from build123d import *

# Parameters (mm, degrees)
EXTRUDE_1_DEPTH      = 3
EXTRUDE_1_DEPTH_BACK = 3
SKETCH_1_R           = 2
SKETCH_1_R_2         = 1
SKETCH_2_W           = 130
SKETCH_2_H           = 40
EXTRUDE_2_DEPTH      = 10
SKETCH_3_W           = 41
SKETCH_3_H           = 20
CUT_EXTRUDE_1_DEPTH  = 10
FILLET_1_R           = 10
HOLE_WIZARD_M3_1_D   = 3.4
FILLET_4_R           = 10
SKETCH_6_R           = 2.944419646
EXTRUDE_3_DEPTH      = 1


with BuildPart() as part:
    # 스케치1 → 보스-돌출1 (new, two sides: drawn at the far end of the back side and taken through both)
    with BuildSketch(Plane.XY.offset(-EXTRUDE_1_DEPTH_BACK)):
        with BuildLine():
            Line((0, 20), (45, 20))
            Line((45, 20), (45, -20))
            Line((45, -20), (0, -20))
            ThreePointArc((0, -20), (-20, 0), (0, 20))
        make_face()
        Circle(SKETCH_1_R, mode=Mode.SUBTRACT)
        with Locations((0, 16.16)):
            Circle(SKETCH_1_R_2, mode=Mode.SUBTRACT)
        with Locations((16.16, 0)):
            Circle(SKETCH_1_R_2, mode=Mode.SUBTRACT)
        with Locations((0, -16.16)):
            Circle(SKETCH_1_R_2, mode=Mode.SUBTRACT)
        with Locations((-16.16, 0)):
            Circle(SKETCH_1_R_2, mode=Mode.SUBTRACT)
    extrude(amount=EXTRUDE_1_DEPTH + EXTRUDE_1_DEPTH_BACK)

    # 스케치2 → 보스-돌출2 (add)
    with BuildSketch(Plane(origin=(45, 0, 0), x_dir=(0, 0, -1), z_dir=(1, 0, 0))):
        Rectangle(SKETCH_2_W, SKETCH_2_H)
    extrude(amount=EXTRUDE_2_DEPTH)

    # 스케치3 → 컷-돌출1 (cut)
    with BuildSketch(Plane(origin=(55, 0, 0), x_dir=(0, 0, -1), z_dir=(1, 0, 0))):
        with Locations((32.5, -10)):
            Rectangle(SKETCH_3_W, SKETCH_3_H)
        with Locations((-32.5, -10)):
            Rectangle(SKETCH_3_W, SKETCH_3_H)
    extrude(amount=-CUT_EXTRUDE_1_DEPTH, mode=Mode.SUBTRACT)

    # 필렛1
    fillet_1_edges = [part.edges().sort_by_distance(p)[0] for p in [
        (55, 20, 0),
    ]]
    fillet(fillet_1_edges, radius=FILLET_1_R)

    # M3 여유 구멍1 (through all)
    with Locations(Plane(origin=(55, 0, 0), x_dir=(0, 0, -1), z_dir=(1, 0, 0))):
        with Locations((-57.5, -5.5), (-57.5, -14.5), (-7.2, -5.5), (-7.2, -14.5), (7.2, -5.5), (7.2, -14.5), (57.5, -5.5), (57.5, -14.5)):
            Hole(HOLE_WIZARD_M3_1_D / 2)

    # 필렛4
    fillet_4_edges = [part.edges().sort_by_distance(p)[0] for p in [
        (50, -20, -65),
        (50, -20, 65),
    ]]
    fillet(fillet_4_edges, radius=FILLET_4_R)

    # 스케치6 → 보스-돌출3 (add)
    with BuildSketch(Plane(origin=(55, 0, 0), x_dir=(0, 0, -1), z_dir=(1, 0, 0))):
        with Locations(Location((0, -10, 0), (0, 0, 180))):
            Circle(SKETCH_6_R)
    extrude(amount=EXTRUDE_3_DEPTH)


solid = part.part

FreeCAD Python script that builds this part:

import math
import FreeCAD as App
import Part
import Sketcher
Q = App.Units.Quantity


def edges_at(feature, points):
    """Names of the edges that pass closest to the given points."""
    edges = feature.Shape.Edges
    near = lambda p: min(range(len(edges)), key=lambda i: edges[i].distToShape(Part.Vertex(*p))[0])
    return sorted({f"Edge{near(p) + 1}" for p in points})

doc = App.newDocument("Part")
body = doc.addObject("PartDesign::Body", "Body")

# Sketch on XY plane
sketch1 = body.newObject("Sketcher::SketchObject", "Sketch")
sketch1.AttachmentSupport = (doc.getObject("XY_Plane"), [""])
sketch1.MapMode = "FlatFace"
sketch1.addGeometry(Part.LineSegment(App.Vector(45, 20, 0), App.Vector(0, 20, 0)), False)
sketch1.addGeometry(Part.ArcOfCircle(Part.Circle(App.Vector(0, 0, 0), App.Vector(0, 0, 1), 20), math.radians(90), math.radians(270)), False)
sketch1.addGeometry(Part.LineSegment(App.Vector(0, -20, 0), App.Vector(45, -20, 0)), False)
sketch1.addGeometry(Part.LineSegment(App.Vector(45, -20, 0), App.Vector(45, 20, 0)), False)
sketch1.addGeometry(Part.Circle(App.Vector(0, -16.2, 0), App.Vector(0, 0, 1), 1), False)
sketch1.addGeometry(Part.Circle(App.Vector(16.2, 0, 0), App.Vector(0, 0, 1), 1), False)
sketch1.addGeometry(Part.Circle(App.Vector(0, 0, 0), App.Vector(0, 0, 1), 2), False)
sketch1.addGeometry(Part.Circle(App.Vector(-16.2, 0, 0), App.Vector(0, 0, 1), 1), False)
sketch1.addGeometry(Part.Circle(App.Vector(0, 16.2, 0), App.Vector(0, 0, 1), 1), False)
sketch1.addConstraint(Sketcher.Constraint("Tangent", 0, 2, 1, 1))
sketch1.addConstraint(Sketcher.Constraint("Tangent", 1, 2, 2, 1))
sketch1.addConstraint(Sketcher.Constraint("Coincident", 2, 2, 3, 1))
sketch1.addConstraint(Sketcher.Constraint("Coincident", 3, 2, 0, 1))
sketch1.addConstraint(Sketcher.Constraint("Horizontal", 0))
sketch1.addConstraint(Sketcher.Constraint("Horizontal", 2))
sketch1.addConstraint(Sketcher.Constraint("Vertical", 3))
sketch1.addConstraint(Sketcher.Constraint("Coincident", 1, 3, -1, 1))
sketch1.addConstraint(Sketcher.Constraint("Coincident", 6, 3, -1, 1))
sketch1.addConstraint(Sketcher.Constraint("Equal", 4, 5))
sketch1.addConstraint(Sketcher.Constraint("Equal", 5, 7))
sketch1.addConstraint(Sketcher.Constraint("Equal", 7, 8))
sketch1.addConstraint(Sketcher.Constraint("Symmetric", 5, 3, 7, 3, -1, 1))
sketch1.addConstraint(Sketcher.Constraint("Symmetric", 4, 3, 8, 3, -1, 1))
sketch1.addConstraint(Sketcher.Constraint("PointOnObject", 4, 3, -2))
sketch1.addConstraint(Sketcher.Constraint("PointOnObject", 5, 3, -1))
sketch1.addConstraint(Sketcher.Constraint("Diameter", 4, Q("2 mm")))
sketch1.addConstraint(Sketcher.Constraint("Diameter", 6, Q("4 mm")))
sketch1.addConstraint(Sketcher.Constraint("Radius", 1, Q("20 mm")))
sketch1.addConstraint(Sketcher.Constraint("DistanceX", 0, 2, 0, 1, Q("45 mm")))
sketch1.addConstraint(Sketcher.Constraint("DistanceY", 4, 3, -1, 1, Q("16.16 mm")))
sketch1.addConstraint(Sketcher.Constraint("DistanceX", -1, 1, 5, 3, Q("16.16 mm")))
pad1 = body.newObject("PartDesign::Pad", "Pad")
pad1.Profile = sketch1
pad1.Type = "TwoLengths"
pad1.Length = 3
pad1.Length2 = 3

# Sketch on YZ plane
sketch2 = body.newObject("Sketcher::SketchObject", "Sketch001")
sketch2.AttachmentSupport = (doc.getObject("YZ_Plane"), [""])
sketch2.MapMode = "FlatFace"
sketch2.AttachmentOffset = App.Placement(App.Vector(0, 0, 45), App.Rotation())
sketch2.addGeometry(Part.LineSegment(App.Vector(20, 65, 0), App.Vector(-20, 65, 0)), False)
sketch2.addGeometry(Part.LineSegment(App.Vector(-20, 65, 0), App.Vector(-20, -65, 0)), False)
sketch2.addGeometry(Part.LineSegment(App.Vector(-20, -65, 0), App.Vector(20, -65, 0)), False)
sketch2.addGeometry(Part.LineSegment(App.Vector(20, -65, 0), App.Vector(20, 65, 0)), False)
sketch2.addConstraint(Sketcher.Constraint("Coincident", 0, 2, 1, 1))
sketch2.addConstraint(Sketcher.Constraint("Coincident", 1, 2, 2, 1))
sketch2.addConstraint(Sketcher.Constraint("Coincident", 2, 2, 3, 1))
sketch2.addConstraint(Sketcher.Constraint("Coincident", 3, 2, 0, 1))
sketch2.addConstraint(Sketcher.Constraint("Horizontal", 0))
sketch2.addConstraint(Sketcher.Constraint("Vertical", 1))
sketch2.addConstraint(Sketcher.Constraint("Horizontal", 2))
sketch2.addConstraint(Sketcher.Constraint("Vertical", 3))
sketch2.addConstraint(Sketcher.Constraint("Symmetric", 0, 2, 2, 2, -1, 1))
sketch2.addConstraint(Sketcher.Constraint("DistanceX", 0, 2, 0, 1, Q("40 mm")))
sketch2.addConstraint(Sketcher.Constraint("DistanceY", 1, 2, 1, 1, Q("130 mm")))
pad2 = body.newObject("PartDesign::Pad", "Pad001")
pad2.Profile = sketch2
pad2.Length = 10

# Sketch on YZ plane
sketch3 = body.newObject("Sketcher::SketchObject", "Sketch002")
sketch3.AttachmentSupport = (doc.getObject("YZ_Plane"), [""])
sketch3.MapMode = "FlatFace"
sketch3.AttachmentOffset = App.Placement(App.Vector(0, 0, 55), App.Rotation())
sketch3.addGeometry(Part.LineSegment(App.Vector(0, -12, 0), App.Vector(-20, -12, 0)), False)
sketch3.addGeometry(Part.LineSegment(App.Vector(-20, -12, 0), App.Vector(-20, -53, 0)), False)
sketch3.addGeometry(Part.LineSegment(App.Vector(-20, -53, 0), App.Vector(0, -53, 0)), False)
sketch3.addGeometry(Part.LineSegment(App.Vector(0, -53, 0), App.Vector(0, -12, 0)), False)
sketch3.addGeometry(Part.LineSegment(App.Vector(0, 53, 0), App.Vector(-20, 53, 0)), False)
sketch3.addGeometry(Part.LineSegment(App.Vector(-20, 53, 0), App.Vector(-20, 12, 0)), False)
sketch3.addGeometry(Part.LineSegment(App.Vector(-20, 12, 0), App.Vector(0, 12, 0)), False)
sketch3.addGeometry(Part.LineSegment(App.Vector(0, 12, 0), App.Vector(0, 53, 0)), False)
sketch3.addConstraint(Sketcher.Constraint("Coincident", 0, 2, 1, 1))
sketch3.addConstraint(Sketcher.Constraint("Coincident", 1, 2, 2, 1))
sketch3.addConstraint(Sketcher.Constraint("Coincident", 2, 2, 3, 1))
sketch3.addConstraint(Sketcher.Constraint("Coincident", 3, 2, 0, 1))
sketch3.addConstraint(Sketcher.Constraint("Coincident", 4, 2, 5, 1))
sketch3.addConstraint(Sketcher.Constraint("Coincident", 5, 2, 6, 1))
sketch3.addConstraint(Sketcher.Constraint("Coincident", 6, 2, 7, 1))
sketch3.addConstraint(Sketcher.Constraint("Coincident", 7, 2, 4, 1))
sketch3.addConstraint(Sketcher.Constraint("Horizontal", 0))
sketch3.addConstraint(Sketcher.Constraint("Vertical", 1))
sketch3.addConstraint(Sketcher.Constraint("Horizontal", 2))
sketch3.addConstraint(Sketcher.Constraint("Vertical", 3))
sketch3.addConstraint(Sketcher.Constraint("Horizontal", 4))
sketch3.addConstraint(Sketcher.Constraint("Vertical", 5))
sketch3.addConstraint(Sketcher.Constraint("Horizontal", 6))
sketch3.addConstraint(Sketcher.Constraint("Vertical", 7))
sketch3.addConstraint(Sketcher.Constraint("Symmetric", 3, 2, 6, 2, -1, 1))
sketch3.addConstraint(Sketcher.Constraint("Symmetric", 1, 2, 4, 2, -1))
sketch3.addConstraint(Sketcher.Constraint("PointOnObject", 2, 2, -2))
sketch3.addConstraint(Sketcher.Constraint("DistanceX", 0, 2, 0, 1, Q("20 mm")))
sketch3.addConstraint(Sketcher.Constraint("DistanceY", 1, 2, 1, 1, Q("41 mm")))
sketch3.addConstraint(Sketcher.Constraint("DistanceY", 0, 2, -1, 1, Q("12 mm")))
pocket1 = body.newObject("PartDesign::Pocket", "Pocket")
pocket1.Profile = sketch3
pocket1.Length = 10
doc.recompute()

fillet = body.newObject("PartDesign::Fillet", "Fillet")
fillet.Base = (pocket1, edges_at(pocket1, [(55, 20, 0)]))
fillet.Radius = 10

# Sketch on YZ plane
sketch4 = body.newObject("Sketcher::SketchObject", "Sketch003")
sketch4.AttachmentSupport = (doc.getObject("YZ_Plane"), [""])
sketch4.MapMode = "FlatFace"
sketch4.AttachmentOffset = App.Placement(App.Vector(0, 0, 55), App.Rotation())
sketch4.addGeometry(Part.Circle(App.Vector(-5.5, 57.5, 0), App.Vector(0, 0, 1), 1.7), False)
sketch4.addGeometry(Part.Circle(App.Vector(-14.5, 57.5, 0), App.Vector(0, 0, 1), 1.7), False)
sketch4.addGeometry(Part.Circle(App.Vector(-5.5, 7.2, 0), App.Vector(0, 0, 1), 1.7), False)
sketch4.addGeometry(Part.Circle(App.Vector(-14.5, 7.2, 0), App.Vector(0, 0, 1), 1.7), False)
sketch4.addGeometry(Part.Circle(App.Vector(-5.5, -7.2, 0), App.Vector(0, 0, 1), 1.7), False)
sketch4.addGeometry(Part.Circle(App.Vector(-14.5, -7.2, 0), App.Vector(0, 0, 1), 1.7), False)
sketch4.addGeometry(Part.Circle(App.Vector(-5.5, -57.5, 0), App.Vector(0, 0, 1), 1.7), False)
sketch4.addGeometry(Part.Circle(App.Vector(-14.5, -57.5, 0), App.Vector(0, 0, 1), 1.7), False)
sketch4.addConstraint(Sketcher.Constraint("Equal", 0, 1))
sketch4.addConstraint(Sketcher.Constraint("Equal", 1, 2))
sketch4.addConstraint(Sketcher.Constraint("Equal", 2, 3))
sketch4.addConstraint(Sketcher.Constraint("Equal", 3, 4))
sketch4.addConstraint(Sketcher.Constraint("Equal", 4, 5))
sketch4.addConstraint(Sketcher.Constraint("Equal", 5, 6))
sketch4.addConstraint(Sketcher.Constraint("Equal", 6, 7))
sketch4.addConstraint(Sketcher.Constraint("Symmetric", 2, 3, 4, 3, -1))
sketch4.addConstraint(Sketcher.Constraint("Symmetric", 3, 3, 5, 3, -1))
sketch4.addConstraint(Sketcher.Constraint("Symmetric", 0, 3, 6, 3, -1))
sketch4.addConstraint(Sketcher.Constraint("Symmetric", 1, 3, 7, 3, -1))
sketch4.addConstraint(Sketcher.Constraint("Horizontal", 0, 3, 1, 3))
sketch4.addConstraint(Sketcher.Constraint("Horizontal", 2, 3, 3, 3))
sketch4.addConstraint(Sketcher.Constraint("Vertical", 0, 3, 2, 3))
sketch4.addConstraint(Sketcher.Constraint("Vertical", 1, 3, 3, 3))
sketch4.addConstraint(Sketcher.Constraint("Diameter", 0, Q("3.4 mm")))
sketch4.addConstraint(Sketcher.Constraint("DistanceX", 1, 3, 0, 3, Q("9 mm")))
sketch4.addConstraint(Sketcher.Constraint("DistanceY", 6, 3, 0, 3, Q("115 mm")))
sketch4.addConstraint(Sketcher.Constraint("DistanceX", 0, 3, -1, 1, Q("5.5 mm")))
sketch4.addConstraint(Sketcher.Constraint("DistanceY", -1, 1, 2, 3, Q("7.2 mm")))
doc.recompute()
hole = body.newObject("PartDesign::Hole", "Hole")
hole.Profile = sketch4
hole.ThreadType = "None"
hole.Diameter = 3.4
hole.DepthType = "ThroughAll"
doc.recompute()

fillet2 = body.newObject("PartDesign::Fillet", "Fillet001")
fillet2.Base = (hole, edges_at(hole, [(50, -20, -65), (50, -20, 65)]))
fillet2.Radius = 10

# Sketch on YZ plane
sketch5 = body.newObject("Sketcher::SketchObject", "Sketch004")
sketch5.AttachmentSupport = (doc.getObject("YZ_Plane"), [""])
sketch5.MapMode = "FlatFace"
sketch5.AttachmentOffset = App.Placement(App.Vector(0, 0, 55), App.Rotation())
sketch5.addGeometry(Part.Circle(App.Vector(-10, 0, 0), App.Vector(0, 0, 1), 2.9), False)
sketch5.addConstraint(Sketcher.Constraint("PointOnObject", 0, 3, -1))
sketch5.addConstraint(Sketcher.Constraint("DistanceX", 0, 3, -1, 1, Q("10 mm")))
sketch5.addConstraint(Sketcher.Constraint("Diameter", 0, Q("5.888839 mm")))
pad3 = body.newObject("PartDesign::Pad", "Pad002")
pad3.Profile = sketch5
pad3.Length = 1

doc.recompute()
